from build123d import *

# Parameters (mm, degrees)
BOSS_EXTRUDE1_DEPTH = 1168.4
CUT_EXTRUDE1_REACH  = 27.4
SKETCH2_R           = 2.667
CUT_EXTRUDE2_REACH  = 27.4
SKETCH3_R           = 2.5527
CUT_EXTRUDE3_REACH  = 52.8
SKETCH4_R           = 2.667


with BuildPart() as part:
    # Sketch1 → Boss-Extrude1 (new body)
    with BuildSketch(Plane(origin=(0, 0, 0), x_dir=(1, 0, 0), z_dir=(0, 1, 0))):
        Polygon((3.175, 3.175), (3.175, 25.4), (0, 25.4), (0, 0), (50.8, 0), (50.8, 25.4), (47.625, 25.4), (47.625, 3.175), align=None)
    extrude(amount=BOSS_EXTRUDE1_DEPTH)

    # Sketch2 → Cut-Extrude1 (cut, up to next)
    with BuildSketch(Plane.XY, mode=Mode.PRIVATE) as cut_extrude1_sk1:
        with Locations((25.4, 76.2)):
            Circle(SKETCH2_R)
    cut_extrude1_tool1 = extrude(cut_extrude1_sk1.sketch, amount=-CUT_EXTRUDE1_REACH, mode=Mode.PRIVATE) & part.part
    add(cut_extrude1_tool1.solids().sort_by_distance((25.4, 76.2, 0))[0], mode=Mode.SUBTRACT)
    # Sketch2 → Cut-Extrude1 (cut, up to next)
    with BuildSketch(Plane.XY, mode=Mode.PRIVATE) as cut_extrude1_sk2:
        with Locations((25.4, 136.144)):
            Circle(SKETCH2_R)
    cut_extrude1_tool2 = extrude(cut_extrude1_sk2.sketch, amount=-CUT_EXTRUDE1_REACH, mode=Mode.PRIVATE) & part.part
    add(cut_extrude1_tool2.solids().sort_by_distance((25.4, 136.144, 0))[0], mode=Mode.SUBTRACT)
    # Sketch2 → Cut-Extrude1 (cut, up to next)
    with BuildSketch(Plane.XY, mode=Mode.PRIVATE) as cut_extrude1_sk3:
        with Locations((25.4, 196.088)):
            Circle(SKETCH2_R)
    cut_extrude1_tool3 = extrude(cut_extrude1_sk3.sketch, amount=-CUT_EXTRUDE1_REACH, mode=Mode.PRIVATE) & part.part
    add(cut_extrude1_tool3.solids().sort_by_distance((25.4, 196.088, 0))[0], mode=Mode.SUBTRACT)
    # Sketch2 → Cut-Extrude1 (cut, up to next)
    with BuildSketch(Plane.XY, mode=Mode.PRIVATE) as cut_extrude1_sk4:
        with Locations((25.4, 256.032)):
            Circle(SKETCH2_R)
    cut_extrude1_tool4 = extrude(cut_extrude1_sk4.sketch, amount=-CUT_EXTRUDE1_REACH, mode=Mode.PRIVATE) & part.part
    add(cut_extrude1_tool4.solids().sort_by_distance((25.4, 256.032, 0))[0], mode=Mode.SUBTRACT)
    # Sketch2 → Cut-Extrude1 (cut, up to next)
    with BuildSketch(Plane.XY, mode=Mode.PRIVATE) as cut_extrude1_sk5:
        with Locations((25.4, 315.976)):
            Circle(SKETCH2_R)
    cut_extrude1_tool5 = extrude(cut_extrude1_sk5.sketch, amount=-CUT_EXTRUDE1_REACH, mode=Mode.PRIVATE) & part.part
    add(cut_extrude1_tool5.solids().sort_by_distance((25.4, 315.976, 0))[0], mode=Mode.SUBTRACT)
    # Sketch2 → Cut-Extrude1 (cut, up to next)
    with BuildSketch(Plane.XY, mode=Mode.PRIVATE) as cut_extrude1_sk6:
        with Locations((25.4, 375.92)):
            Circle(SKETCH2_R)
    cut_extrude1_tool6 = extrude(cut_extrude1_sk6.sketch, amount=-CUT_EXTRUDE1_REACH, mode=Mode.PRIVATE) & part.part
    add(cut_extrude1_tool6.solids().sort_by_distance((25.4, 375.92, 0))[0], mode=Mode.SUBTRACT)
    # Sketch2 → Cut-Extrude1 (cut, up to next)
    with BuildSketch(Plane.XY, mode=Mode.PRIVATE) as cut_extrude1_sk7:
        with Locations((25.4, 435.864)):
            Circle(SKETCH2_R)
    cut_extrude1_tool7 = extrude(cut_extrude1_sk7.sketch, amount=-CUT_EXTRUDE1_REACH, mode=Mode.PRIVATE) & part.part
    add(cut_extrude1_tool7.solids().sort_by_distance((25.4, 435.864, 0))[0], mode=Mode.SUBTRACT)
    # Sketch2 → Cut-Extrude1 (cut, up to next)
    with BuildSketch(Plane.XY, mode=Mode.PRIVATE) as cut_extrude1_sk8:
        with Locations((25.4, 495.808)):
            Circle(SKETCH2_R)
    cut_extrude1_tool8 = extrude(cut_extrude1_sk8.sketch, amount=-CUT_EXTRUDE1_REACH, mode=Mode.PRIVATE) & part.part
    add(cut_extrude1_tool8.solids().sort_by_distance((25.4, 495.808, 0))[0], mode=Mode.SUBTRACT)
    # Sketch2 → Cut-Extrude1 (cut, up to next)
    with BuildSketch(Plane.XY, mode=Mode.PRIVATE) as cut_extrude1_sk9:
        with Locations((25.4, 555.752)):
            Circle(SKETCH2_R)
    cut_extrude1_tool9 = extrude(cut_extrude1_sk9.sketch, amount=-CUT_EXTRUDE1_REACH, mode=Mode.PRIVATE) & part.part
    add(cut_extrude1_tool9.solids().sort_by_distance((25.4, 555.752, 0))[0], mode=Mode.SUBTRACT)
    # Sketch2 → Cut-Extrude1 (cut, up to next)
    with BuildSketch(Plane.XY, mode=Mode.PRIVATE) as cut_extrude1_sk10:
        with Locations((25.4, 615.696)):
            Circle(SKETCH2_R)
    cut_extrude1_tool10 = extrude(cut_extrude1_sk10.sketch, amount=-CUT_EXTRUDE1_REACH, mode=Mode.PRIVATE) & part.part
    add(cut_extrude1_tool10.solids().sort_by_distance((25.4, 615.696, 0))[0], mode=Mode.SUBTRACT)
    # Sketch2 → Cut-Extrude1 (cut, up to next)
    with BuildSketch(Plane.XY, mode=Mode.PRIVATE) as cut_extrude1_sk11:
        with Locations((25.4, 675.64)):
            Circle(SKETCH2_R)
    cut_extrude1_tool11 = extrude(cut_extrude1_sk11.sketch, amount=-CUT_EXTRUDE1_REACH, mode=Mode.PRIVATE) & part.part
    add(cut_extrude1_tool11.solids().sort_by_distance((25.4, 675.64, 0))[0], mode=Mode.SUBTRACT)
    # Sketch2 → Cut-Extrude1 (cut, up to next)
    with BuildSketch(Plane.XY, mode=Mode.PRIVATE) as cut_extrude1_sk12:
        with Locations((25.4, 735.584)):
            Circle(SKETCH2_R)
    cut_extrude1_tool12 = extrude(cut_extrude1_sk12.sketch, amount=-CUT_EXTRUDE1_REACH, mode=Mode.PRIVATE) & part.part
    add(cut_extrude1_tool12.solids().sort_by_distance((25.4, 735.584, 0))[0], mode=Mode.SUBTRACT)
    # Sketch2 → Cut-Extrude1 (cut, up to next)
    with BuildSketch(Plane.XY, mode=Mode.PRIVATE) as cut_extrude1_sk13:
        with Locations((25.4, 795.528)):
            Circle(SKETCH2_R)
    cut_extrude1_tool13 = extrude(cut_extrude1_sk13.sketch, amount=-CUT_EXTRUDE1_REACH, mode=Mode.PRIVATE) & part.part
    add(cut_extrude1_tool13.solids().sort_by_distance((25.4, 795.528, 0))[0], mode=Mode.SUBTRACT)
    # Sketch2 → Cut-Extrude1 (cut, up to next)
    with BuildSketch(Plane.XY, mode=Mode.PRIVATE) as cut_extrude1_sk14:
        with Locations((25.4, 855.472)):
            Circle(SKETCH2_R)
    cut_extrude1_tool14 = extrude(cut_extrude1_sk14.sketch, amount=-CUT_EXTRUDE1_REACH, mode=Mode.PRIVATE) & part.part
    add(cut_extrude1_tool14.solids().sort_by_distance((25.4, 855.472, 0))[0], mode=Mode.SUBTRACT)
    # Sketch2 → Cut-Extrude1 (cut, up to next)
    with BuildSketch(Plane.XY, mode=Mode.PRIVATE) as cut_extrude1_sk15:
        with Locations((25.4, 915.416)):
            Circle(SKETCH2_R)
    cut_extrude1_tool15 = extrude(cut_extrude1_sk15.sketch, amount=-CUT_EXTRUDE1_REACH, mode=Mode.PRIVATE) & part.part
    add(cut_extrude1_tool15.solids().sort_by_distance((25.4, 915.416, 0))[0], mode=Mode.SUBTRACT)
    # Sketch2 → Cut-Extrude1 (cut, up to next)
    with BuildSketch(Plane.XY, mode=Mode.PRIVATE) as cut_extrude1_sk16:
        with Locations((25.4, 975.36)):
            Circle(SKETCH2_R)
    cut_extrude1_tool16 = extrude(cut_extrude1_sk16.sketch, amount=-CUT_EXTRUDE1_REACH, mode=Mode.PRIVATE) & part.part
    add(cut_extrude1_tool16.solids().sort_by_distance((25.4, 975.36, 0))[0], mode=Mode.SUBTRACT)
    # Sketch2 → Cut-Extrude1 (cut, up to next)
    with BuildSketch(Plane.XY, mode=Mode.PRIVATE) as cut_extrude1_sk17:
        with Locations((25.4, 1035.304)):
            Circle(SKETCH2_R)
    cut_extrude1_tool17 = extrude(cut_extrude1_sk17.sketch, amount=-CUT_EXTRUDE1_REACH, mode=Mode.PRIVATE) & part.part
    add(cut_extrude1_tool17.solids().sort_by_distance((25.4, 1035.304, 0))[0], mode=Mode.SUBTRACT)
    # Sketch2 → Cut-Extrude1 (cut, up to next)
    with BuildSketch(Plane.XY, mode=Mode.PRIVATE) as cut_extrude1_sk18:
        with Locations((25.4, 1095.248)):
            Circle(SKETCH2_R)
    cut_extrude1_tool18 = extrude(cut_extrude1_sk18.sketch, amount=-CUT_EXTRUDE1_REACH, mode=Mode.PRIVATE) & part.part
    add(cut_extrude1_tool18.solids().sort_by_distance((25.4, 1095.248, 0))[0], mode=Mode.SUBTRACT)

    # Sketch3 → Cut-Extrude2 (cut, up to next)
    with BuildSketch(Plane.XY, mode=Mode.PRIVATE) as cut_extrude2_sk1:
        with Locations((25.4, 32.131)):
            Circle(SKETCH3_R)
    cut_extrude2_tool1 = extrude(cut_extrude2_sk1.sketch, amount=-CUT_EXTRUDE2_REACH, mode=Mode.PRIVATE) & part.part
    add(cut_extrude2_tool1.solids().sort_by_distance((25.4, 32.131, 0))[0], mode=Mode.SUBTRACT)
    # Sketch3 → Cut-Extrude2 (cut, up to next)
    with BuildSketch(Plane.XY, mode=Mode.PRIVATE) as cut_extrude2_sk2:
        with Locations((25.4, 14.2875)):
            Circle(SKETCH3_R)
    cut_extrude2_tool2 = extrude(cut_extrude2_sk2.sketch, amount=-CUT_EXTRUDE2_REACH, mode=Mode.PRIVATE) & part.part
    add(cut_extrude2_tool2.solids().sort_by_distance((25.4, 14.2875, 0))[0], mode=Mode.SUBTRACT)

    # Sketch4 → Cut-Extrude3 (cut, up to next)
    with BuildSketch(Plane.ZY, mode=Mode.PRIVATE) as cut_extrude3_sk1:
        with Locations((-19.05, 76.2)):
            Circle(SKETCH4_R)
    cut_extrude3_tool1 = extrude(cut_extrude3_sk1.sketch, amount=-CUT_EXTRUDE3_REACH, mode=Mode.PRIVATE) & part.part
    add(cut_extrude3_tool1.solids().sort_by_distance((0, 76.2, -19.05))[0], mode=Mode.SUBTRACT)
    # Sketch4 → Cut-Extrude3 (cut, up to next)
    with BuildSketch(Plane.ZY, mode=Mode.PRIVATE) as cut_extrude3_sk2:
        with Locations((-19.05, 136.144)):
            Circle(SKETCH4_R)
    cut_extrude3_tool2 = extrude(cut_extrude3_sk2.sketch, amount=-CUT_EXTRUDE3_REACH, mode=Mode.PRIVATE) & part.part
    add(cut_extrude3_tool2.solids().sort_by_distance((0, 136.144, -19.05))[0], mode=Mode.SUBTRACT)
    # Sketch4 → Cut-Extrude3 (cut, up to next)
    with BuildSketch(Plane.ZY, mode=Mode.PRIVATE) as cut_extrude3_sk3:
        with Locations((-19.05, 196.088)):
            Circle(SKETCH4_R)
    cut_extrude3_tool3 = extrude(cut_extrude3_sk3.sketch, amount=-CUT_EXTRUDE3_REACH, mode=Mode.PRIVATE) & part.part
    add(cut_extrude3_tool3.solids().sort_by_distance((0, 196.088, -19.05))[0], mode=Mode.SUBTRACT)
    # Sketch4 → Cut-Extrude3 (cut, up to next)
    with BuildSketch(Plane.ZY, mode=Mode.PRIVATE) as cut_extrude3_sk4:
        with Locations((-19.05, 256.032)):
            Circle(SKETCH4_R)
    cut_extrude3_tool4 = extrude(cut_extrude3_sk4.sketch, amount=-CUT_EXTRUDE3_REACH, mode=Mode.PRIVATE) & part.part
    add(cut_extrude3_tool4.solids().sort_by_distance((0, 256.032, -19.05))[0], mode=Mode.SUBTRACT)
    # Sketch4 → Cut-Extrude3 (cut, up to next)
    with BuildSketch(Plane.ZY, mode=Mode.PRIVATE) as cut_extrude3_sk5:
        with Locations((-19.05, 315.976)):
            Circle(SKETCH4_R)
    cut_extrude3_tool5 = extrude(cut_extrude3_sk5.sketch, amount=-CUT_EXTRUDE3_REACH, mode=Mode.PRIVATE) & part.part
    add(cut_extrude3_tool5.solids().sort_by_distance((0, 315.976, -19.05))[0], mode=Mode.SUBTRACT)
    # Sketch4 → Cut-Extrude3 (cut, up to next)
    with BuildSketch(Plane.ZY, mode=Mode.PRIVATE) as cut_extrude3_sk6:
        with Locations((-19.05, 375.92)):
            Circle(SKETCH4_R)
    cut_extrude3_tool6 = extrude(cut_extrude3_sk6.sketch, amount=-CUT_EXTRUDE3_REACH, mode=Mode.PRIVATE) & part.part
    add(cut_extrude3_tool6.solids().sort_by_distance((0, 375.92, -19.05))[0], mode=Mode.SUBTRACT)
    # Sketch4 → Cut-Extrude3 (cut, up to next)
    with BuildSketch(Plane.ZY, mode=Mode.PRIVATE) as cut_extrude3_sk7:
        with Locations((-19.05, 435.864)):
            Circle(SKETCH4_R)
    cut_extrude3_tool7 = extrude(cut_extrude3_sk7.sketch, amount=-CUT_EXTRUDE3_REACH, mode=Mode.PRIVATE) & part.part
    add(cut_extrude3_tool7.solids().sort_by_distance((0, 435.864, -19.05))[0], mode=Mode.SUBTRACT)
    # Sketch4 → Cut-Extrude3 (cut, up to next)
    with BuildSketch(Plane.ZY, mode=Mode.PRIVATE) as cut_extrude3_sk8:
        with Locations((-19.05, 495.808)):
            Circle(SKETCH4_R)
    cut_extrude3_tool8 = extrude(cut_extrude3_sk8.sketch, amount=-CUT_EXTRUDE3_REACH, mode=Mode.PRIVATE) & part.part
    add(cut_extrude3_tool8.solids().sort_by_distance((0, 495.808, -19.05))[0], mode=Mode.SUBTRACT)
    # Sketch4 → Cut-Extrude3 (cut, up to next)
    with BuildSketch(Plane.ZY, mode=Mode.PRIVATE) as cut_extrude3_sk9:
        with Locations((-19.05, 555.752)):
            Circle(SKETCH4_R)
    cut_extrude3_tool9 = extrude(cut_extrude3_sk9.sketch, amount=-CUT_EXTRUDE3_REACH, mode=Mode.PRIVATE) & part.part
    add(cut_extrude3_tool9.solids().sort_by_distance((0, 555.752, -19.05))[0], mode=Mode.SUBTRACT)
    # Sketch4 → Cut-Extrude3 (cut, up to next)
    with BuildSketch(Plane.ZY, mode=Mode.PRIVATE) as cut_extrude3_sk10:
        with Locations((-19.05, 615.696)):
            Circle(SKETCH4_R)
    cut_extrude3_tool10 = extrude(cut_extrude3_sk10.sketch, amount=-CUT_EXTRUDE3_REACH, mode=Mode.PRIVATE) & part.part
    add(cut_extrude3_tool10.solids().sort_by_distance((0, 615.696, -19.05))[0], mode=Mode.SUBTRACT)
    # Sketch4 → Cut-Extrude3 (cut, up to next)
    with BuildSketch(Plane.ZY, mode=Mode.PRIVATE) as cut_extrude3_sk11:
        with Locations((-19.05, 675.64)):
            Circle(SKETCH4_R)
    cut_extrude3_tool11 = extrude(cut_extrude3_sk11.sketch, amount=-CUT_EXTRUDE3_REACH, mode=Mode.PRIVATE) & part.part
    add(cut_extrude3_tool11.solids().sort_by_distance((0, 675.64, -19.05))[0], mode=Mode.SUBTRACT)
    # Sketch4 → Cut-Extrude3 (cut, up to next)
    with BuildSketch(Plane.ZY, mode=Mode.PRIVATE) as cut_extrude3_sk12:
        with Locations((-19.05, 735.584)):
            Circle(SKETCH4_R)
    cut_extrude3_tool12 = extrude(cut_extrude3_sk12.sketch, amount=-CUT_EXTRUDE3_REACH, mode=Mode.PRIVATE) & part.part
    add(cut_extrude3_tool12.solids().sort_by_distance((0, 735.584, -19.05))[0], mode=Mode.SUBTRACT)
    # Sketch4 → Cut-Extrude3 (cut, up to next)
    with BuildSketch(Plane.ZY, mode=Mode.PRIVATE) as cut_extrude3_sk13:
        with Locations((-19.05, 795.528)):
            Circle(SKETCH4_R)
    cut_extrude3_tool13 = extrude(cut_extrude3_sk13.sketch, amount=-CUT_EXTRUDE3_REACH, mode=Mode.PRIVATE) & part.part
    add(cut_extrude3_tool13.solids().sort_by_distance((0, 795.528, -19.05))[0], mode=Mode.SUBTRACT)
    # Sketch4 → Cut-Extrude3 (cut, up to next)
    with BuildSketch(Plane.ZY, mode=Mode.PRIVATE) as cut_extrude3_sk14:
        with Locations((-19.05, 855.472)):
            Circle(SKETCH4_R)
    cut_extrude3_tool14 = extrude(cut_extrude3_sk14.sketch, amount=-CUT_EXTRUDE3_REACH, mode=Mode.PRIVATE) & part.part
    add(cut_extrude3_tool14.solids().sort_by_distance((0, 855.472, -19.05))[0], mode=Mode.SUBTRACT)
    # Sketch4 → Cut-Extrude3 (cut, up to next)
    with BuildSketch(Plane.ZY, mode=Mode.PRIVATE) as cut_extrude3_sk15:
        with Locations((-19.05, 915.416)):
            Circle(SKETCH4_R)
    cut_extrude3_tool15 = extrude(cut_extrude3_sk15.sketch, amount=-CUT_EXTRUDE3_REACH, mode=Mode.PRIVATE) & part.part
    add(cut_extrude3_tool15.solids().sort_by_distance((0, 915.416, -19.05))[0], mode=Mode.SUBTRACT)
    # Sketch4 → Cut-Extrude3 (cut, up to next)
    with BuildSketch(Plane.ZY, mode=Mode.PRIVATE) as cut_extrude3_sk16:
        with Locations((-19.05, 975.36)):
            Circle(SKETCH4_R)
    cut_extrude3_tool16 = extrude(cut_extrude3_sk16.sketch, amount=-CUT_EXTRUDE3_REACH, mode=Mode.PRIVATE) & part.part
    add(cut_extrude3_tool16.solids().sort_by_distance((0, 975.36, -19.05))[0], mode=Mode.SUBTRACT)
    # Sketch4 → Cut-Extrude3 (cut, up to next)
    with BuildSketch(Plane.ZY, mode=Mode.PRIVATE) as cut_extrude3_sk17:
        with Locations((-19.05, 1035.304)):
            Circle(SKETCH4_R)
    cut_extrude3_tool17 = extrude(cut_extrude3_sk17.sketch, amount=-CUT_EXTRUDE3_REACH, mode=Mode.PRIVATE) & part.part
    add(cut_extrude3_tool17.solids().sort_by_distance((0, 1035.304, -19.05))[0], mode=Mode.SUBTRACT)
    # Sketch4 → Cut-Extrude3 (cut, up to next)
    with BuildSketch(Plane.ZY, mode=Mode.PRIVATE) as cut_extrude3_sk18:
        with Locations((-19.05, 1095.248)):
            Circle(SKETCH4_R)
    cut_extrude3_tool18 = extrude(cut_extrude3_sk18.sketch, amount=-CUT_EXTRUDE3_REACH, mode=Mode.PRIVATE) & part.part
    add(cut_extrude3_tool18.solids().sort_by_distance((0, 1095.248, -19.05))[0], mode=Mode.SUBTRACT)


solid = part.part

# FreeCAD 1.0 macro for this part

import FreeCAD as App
import Part
import Sketcher

V = App.Vector
Q = App.Units.Quantity


def add_polygon(sketch, points):
    """Adds a closed chain of lines whose ends are joined by coincident constraints."""
    first, n = sketch.GeometryCount, len(points)
    for a, b in zip(points, points[1:] + points[:1]):
        sketch.addGeometry(Part.LineSegment(App.Vector(*a, 0), App.Vector(*b, 0)), False)
    for i in range(n):
        sketch.addConstraint(Sketcher.Constraint("Coincident", first + i, 2, first + (i + 1) % n, 1))

doc = App.newDocument("Part")
body = doc.addObject("PartDesign::Body", "Body")

# Sketch on XZ plane
sketch1 = doc.addObject("Sketcher::SketchObject", "Sketch")
body.addObject(sketch1)
sketch1.AttachmentSupport = (doc.XZ_Plane, [""])
sketch1.MapMode = "FlatFace"
add_polygon(sketch1, [(3.2, -3.2), (3.2, -25.4), (0, -25.4), (0, 0), (50.8, 0), (50.8, -25.4), (47.6, -25.4), (47.6, -3.2)])  # lines 0-7
sketch1.addConstraint([
    Sketcher.Constraint("Vertical", 0),
    Sketcher.Constraint("Horizontal", 1),
    Sketcher.Constraint("Vertical", 2),
    Sketcher.Constraint("Horizontal", 3),
    Sketcher.Constraint("Vertical", 4),
    Sketcher.Constraint("Horizontal", 5),
    Sketcher.Constraint("Vertical", 6),
    Sketcher.Constraint("Horizontal", 7),
    Sketcher.Constraint("Coincident", 2, 2, -1, 1),
    Sketcher.Constraint("Horizontal", 1, 2, 4, 2),
    Sketcher.Constraint("Equal", 1, 5),
    Sketcher.Constraint("DistanceX", 3, 1, 3, 2, Q("2 in")),
    Sketcher.Constraint("DistanceY", 2, 1, 2, 2, Q("1 in")),
    Sketcher.Constraint("DistanceX", 7, 2, 7, 1, Q("1.75 in")),
    Sketcher.Constraint("DistanceY", 0, 2, 0, 1, Q("0.875 in")),
])
pad1 = doc.addObject("PartDesign::Pad", "Pad")
body.addObject(pad1)
pad1.Profile = sketch1
pad1.Length = Q("46 in")
pad1.Reversed = True

# Sketch on XY plane
sketch2 = doc.addObject("Sketcher::SketchObject", "Sketch001")
body.addObject(sketch2)
sketch2.AttachmentSupport = (doc.XY_Plane, [""])
sketch2.MapMode = "FlatFace"
sketch2.addGeometry(Part.Circle(V(25.4, 76.2, 0), V(0, 0, 1), 2.7), False)
sketch2.addConstraint([
    Sketcher.Constraint("Diameter", 0, Q("0.21 in")),
    Sketcher.Constraint("DistanceX", -1, 1, 0, 3, Q("1 in")),
    Sketcher.Constraint("DistanceY", -1, 1, 0, 3, Q("3 in")),
])
pocket1 = doc.addObject("PartDesign::Pocket", "Pocket")
body.addObject(pocket1)
pocket1.Profile = sketch2
pocket1.Type = "UpToFirst"

# Sketch on XY plane
sketch3 = doc.addObject("Sketcher::SketchObject", "Sketch002")
body.addObject(sketch3)
sketch3.AttachmentSupport = (doc.XY_Plane, [""])
sketch3.MapMode = "FlatFace"
sketch3.addGeometry(Part.Circle(V(25.4, 136.1, 0), V(0, 0, 1), 2.7), False)
sketch3.addConstraint([
    Sketcher.Constraint("Diameter", 0, Q("0.21 in")),
    Sketcher.Constraint("DistanceX", -1, 1, 0, 3, Q("1 in")),
    Sketcher.Constraint("DistanceY", -1, 1, 0, 3, Q("5.36 in")),
])
pocket2 = doc.addObject("PartDesign::Pocket", "Pocket001")
body.addObject(pocket2)
pocket2.Profile = sketch3
pocket2.Type = "UpToFirst"

# Sketch on XY plane
sketch4 = doc.addObject("Sketcher::SketchObject", "Sketch003")
body.addObject(sketch4)
sketch4.AttachmentSupport = (doc.XY_Plane, [""])
sketch4.MapMode = "FlatFace"
sketch4.addGeometry(Part.Circle(V(25.4, 196.1, 0), V(0, 0, 1), 2.7), False)
sketch4.addConstraint([
    Sketcher.Constraint("Diameter", 0, Q("0.21 in")),
    Sketcher.Constraint("DistanceX", -1, 1, 0, 3, Q("1 in")),
    Sketcher.Constraint("DistanceY", -1, 1, 0, 3, Q("7.72 in")),
])
pocket3 = doc.addObject("PartDesign::Pocket", "Pocket002")
body.addObject(pocket3)
pocket3.Profile = sketch4
pocket3.Type = "UpToFirst"

# Sketch on XY plane
sketch5 = doc.addObject("Sketcher::SketchObject", "Sketch004")
body.addObject(sketch5)
sketch5.AttachmentSupport = (doc.XY_Plane, [""])
sketch5.MapMode = "FlatFace"
sketch5.addGeometry(Part.Circle(V(25.4, 256, 0), V(0, 0, 1), 2.7), False)
sketch5.addConstraint([
    Sketcher.Constraint("Diameter", 0, Q("0.21 in")),
    Sketcher.Constraint("DistanceX", -1, 1, 0, 3, Q("1 in")),
    Sketcher.Constraint("DistanceY", -1, 1, 0, 3, Q("10.08 in")),
])
pocket4 = doc.addObject("PartDesign::Pocket", "Pocket003")
body.addObject(pocket4)
pocket4.Profile = sketch5
pocket4.Type = "UpToFirst"

# Sketch on XY plane
sketch6 = doc.addObject("Sketcher::SketchObject", "Sketch005")
body.addObject(sketch6)
sketch6.AttachmentSupport = (doc.XY_Plane, [""])
sketch6.MapMode = "FlatFace"
sketch6.addGeometry(Part.Circle(V(25.4, 316, 0), V(0, 0, 1), 2.7), False)
sketch6.addConstraint([
    Sketcher.Constraint("Diameter", 0, Q("0.21 in")),
    Sketcher.Constraint("DistanceX", -1, 1, 0, 3, Q("1 in")),
    Sketcher.Constraint("DistanceY", -1, 1, 0, 3, Q("12.44 in")),
])
pocket5 = doc.addObject("PartDesign::Pocket", "Pocket004")
body.addObject(pocket5)
pocket5.Profile = sketch6
pocket5.Type = "UpToFirst"

# Sketch on XY plane
sketch7 = doc.addObject("Sketcher::SketchObject", "Sketch006")
body.addObject(sketch7)
sketch7.AttachmentSupport = (doc.XY_Plane, [""])
sketch7.MapMode = "FlatFace"
sketch7.addGeometry(Part.Circle(V(25.4, 375.9, 0), V(0, 0, 1), 2.7), False)
sketch7.addConstraint([
    Sketcher.Constraint("Diameter", 0, Q("0.21 in")),
    Sketcher.Constraint("DistanceX", -1, 1, 0, 3, Q("1 in")),
    Sketcher.Constraint("DistanceY", -1, 1, 0, 3, Q("14.8 in")),
])
pocket6 = doc.addObject("PartDesign::Pocket", "Pocket005")
body.addObject(pocket6)
pocket6.Profile = sketch7
pocket6.Type = "UpToFirst"

# Sketch on XY plane
sketch8 = doc.addObject("Sketcher::SketchObject", "Sketch007")
body.addObject(sketch8)
sketch8.AttachmentSupport = (doc.XY_Plane, [""])
sketch8.MapMode = "FlatFace"
sketch8.addGeometry(Part.Circle(V(25.4, 435.9, 0), V(0, 0, 1), 2.7), False)
sketch8.addConstraint([
    Sketcher.Constraint("Diameter", 0, Q("0.21 in")),
    Sketcher.Constraint("DistanceX", -1, 1, 0, 3, Q("1 in")),
    Sketcher.Constraint("DistanceY", -1, 1, 0, 3, Q("17.16 in")),
])
pocket7 = doc.addObject("PartDesign::Pocket", "Pocket006")
body.addObject(pocket7)
pocket7.Profile = sketch8
pocket7.Type = "UpToFirst"

# Sketch on XY plane
sketch9 = doc.addObject("Sketcher::SketchObject", "Sketch008")
body.addObject(sketch9)
sketch9.AttachmentSupport = (doc.XY_Plane, [""])
sketch9.MapMode = "FlatFace"
sketch9.addGeometry(Part.Circle(V(25.4, 495.8, 0), V(0, 0, 1), 2.7), False)
sketch9.addConstraint([
    Sketcher.Constraint("Diameter", 0, Q("0.21 in")),
    Sketcher.Constraint("DistanceX", -1, 1, 0, 3, Q("1 in")),
    Sketcher.Constraint("DistanceY", -1, 1, 0, 3, Q("19.52 in")),
])
pocket8 = doc.addObject("PartDesign::Pocket", "Pocket007")
body.addObject(pocket8)
pocket8.Profile = sketch9
pocket8.Type = "UpToFirst"

# Sketch on XY plane
sketch10 = doc.addObject("Sketcher::SketchObject", "Sketch009")
body.addObject(sketch10)
sketch10.AttachmentSupport = (doc.XY_Plane, [""])
sketch10.MapMode = "FlatFace"
sketch10.addGeometry(Part.Circle(V(25.4, 555.8, 0), V(0, 0, 1), 2.7), False)
sketch10.addConstraint([
    Sketcher.Constraint("Diameter", 0, Q("0.21 in")),
    Sketcher.Constraint("DistanceX", -1, 1, 0, 3, Q("1 in")),
    Sketcher.Constraint("DistanceY", -1, 1, 0, 3, Q("21.88 in")),
])
pocket9 = doc.addObject("PartDesign::Pocket", "Pocket008")
body.addObject(pocket9)
pocket9.Profile = sketch10
pocket9.Type = "UpToFirst"

# Sketch on XY plane
sketch11 = doc.addObject("Sketcher::SketchObject", "Sketch010")
body.addObject(sketch11)
sketch11.AttachmentSupport = (doc.XY_Plane, [""])
sketch11.MapMode = "FlatFace"
sketch11.addGeometry(Part.Circle(V(25.4, 615.7, 0), V(0, 0, 1), 2.7), False)
sketch11.addConstraint([
    Sketcher.Constraint("Diameter", 0, Q("0.21 in")),
    Sketcher.Constraint("DistanceX", -1, 1, 0, 3, Q("1 in")),
    Sketcher.Constraint("DistanceY", -1, 1, 0, 3, Q("24.24 in")),
])
pocket10 = doc.addObject("PartDesign::Pocket", "Pocket009")
body.addObject(pocket10)
pocket10.Profile = sketch11
pocket10.Type = "UpToFirst"

# Sketch on XY plane
sketch12 = doc.addObject("Sketcher::SketchObject", "Sketch011")
body.addObject(sketch12)
sketch12.AttachmentSupport = (doc.XY_Plane, [""])
sketch12.MapMode = "FlatFace"
sketch12.addGeometry(Part.Circle(V(25.4, 675.6, 0), V(0, 0, 1), 2.7), False)
sketch12.addConstraint([
    Sketcher.Constraint("Diameter", 0, Q("0.21 in")),
    Sketcher.Constraint("DistanceX", -1, 1, 0, 3, Q("1 in")),
    Sketcher.Constraint("DistanceY", -1, 1, 0, 3, Q("26.6 in")),
])
pocket11 = doc.addObject("PartDesign::Pocket", "Pocket010")
body.addObject(pocket11)
pocket11.Profile = sketch12
pocket11.Type = "UpToFirst"

# Sketch on XY plane
sketch13 = doc.addObject("Sketcher::SketchObject", "Sketch012")
body.addObject(sketch13)
sketch13.AttachmentSupport = (doc.XY_Plane, [""])
sketch13.MapMode = "FlatFace"
sketch13.addGeometry(Part.Circle(V(25.4, 735.6, 0), V(0, 0, 1), 2.7), False)
sketch13.addConstraint([
    Sketcher.Constraint("Diameter", 0, Q("0.21 in")),
    Sketcher.Constraint("DistanceX", -1, 1, 0, 3, Q("1 in")),
    Sketcher.Constraint("DistanceY", -1, 1, 0, 3, Q("28.96 in")),
])
pocket12 = doc.addObject("PartDesign::Pocket", "Pocket011")
body.addObject(pocket12)
pocket12.Profile = sketch13
pocket12.Type = "UpToFirst"

# Sketch on XY plane
sketch14 = doc.addObject("Sketcher::SketchObject", "Sketch013")
body.addObject(sketch14)
sketch14.AttachmentSupport = (doc.XY_Plane, [""])
sketch14.MapMode = "FlatFace"
sketch14.addGeometry(Part.Circle(V(25.4, 795.5, 0), V(0, 0, 1), 2.7), False)
sketch14.addConstraint([
    Sketcher.Constraint("Diameter", 0, Q("0.21 in")),
    Sketcher.Constraint("DistanceX", -1, 1, 0, 3, Q("1 in")),
    Sketcher.Constraint("DistanceY", -1, 1, 0, 3, Q("31.32 in")),
])
pocket13 = doc.addObject("PartDesign::Pocket", "Pocket012")
body.addObject(pocket13)
pocket13.Profile = sketch14
pocket13.Type = "UpToFirst"

# Sketch on XY plane
sketch15 = doc.addObject("Sketcher::SketchObject", "Sketch014")
body.addObject(sketch15)
sketch15.AttachmentSupport = (doc.XY_Plane, [""])
sketch15.MapMode = "FlatFace"
sketch15.addGeometry(Part.Circle(V(25.4, 855.5, 0), V(0, 0, 1), 2.7), False)
sketch15.addConstraint([
    Sketcher.Constraint("Diameter", 0, Q("0.21 in")),
    Sketcher.Constraint("DistanceX", -1, 1, 0, 3, Q("1 in")),
    Sketcher.Constraint("DistanceY", -1, 1, 0, 3, Q("33.68 in")),
])
pocket14 = doc.addObject("PartDesign::Pocket", "Pocket013")
body.addObject(pocket14)
pocket14.Profile = sketch15
pocket14.Type = "UpToFirst"

# Sketch on XY plane
sketch16 = doc.addObject("Sketcher::SketchObject", "Sketch015")
body.addObject(sketch16)
sketch16.AttachmentSupport = (doc.XY_Plane, [""])
sketch16.MapMode = "FlatFace"
sketch16.addGeometry(Part.Circle(V(25.4, 915.4, 0), V(0, 0, 1), 2.7), False)
sketch16.addConstraint([
    Sketcher.Constraint("Diameter", 0, Q("0.21 in")),
    Sketcher.Constraint("DistanceX", -1, 1, 0, 3, Q("1 in")),
    Sketcher.Constraint("DistanceY", -1, 1, 0, 3, Q("36.04 in")),
])
pocket15 = doc.addObject("PartDesign::Pocket", "Pocket014")
body.addObject(pocket15)
pocket15.Profile = sketch16
pocket15.Type = "UpToFirst"

# Sketch on XY plane
sketch17 = doc.addObject("Sketcher::SketchObject", "Sketch016")
body.addObject(sketch17)
sketch17.AttachmentSupport = (doc.XY_Plane, [""])
sketch17.MapMode = "FlatFace"
sketch17.addGeometry(Part.Circle(V(25.4, 975.4, 0), V(0, 0, 1), 2.7), False)
sketch17.addConstraint([
    Sketcher.Constraint("Diameter", 0, Q("0.21 in")),
    Sketcher.Constraint("DistanceX", -1, 1, 0, 3, Q("1 in")),
    Sketcher.Constraint("DistanceY", -1, 1, 0, 3, Q("38.4 in")),
])
pocket16 = doc.addObject("PartDesign::Pocket", "Pocket015")
body.addObject(pocket16)
pocket16.Profile = sketch17
pocket16.Type = "UpToFirst"

# Sketch on XY plane
sketch18 = doc.addObject("Sketcher::SketchObject", "Sketch017")
body.addObject(sketch18)
sketch18.AttachmentSupport = (doc.XY_Plane, [""])
sketch18.MapMode = "FlatFace"
sketch18.addGeometry(Part.Circle(V(25.4, 1035.3, 0), V(0, 0, 1), 2.7), False)
sketch18.addConstraint([
    Sketcher.Constraint("Diameter", 0, Q("0.21 in")),
    Sketcher.Constraint("DistanceX", -1, 1, 0, 3, Q("1 in")),
    Sketcher.Constraint("DistanceY", -1, 1, 0, 3, Q("40.76 in")),
])
pocket17 = doc.addObject("PartDesign::Pocket", "Pocket016")
body.addObject(pocket17)
pocket17.Profile = sketch18
pocket17.Type = "UpToFirst"

# Sketch on XY plane
sketch19 = doc.addObject("Sketcher::SketchObject", "Sketch018")
body.addObject(sketch19)
sketch19.AttachmentSupport = (doc.XY_Plane, [""])
sketch19.MapMode = "FlatFace"
sketch19.addGeometry(Part.Circle(V(25.4, 1095.2, 0), V(0, 0, 1), 2.7), False)
sketch19.addConstraint([
    Sketcher.Constraint("Diameter", 0, Q("0.21 in")),
    Sketcher.Constraint("DistanceX", -1, 1, 0, 3, Q("1 in")),
    Sketcher.Constraint("DistanceY", -1, 1, 0, 3, Q("43.12 in")),
])
pocket18 = doc.addObject("PartDesign::Pocket", "Pocket017")
body.addObject(pocket18)
pocket18.Profile = sketch19
pocket18.Type = "UpToFirst"

# Sketch on XY plane
sketch20 = doc.addObject("Sketcher::SketchObject", "Sketch019")
body.addObject(sketch20)
sketch20.AttachmentSupport = (doc.XY_Plane, [""])
sketch20.MapMode = "FlatFace"
sketch20.addGeometry(Part.Circle(V(25.4, 32.1, 0), V(0, 0, 1), 2.6), False)
sketch20.addConstraint([
    Sketcher.Constraint("Diameter", 0, Q("0.201 in")),
    Sketcher.Constraint("DistanceX", -1, 1, 0, 3, Q("1 in")),
    Sketcher.Constraint("DistanceY", -1, 1, 0, 3, Q("1.265 in")),
])
pocket19 = doc.addObject("PartDesign::Pocket", "Pocket018")
body.addObject(pocket19)
pocket19.Profile = sketch20
pocket19.Type = "UpToFirst"

# Sketch on XY plane
sketch21 = doc.addObject("Sketcher::SketchObject", "Sketch020")
body.addObject(sketch21)
sketch21.AttachmentSupport = (doc.XY_Plane, [""])
sketch21.MapMode = "FlatFace"
sketch21.addGeometry(Part.Circle(V(25.4, 14.3, 0), V(0, 0, 1), 2.6), False)
sketch21.addConstraint([
    Sketcher.Constraint("Diameter", 0, Q("0.201 in")),
    Sketcher.Constraint("DistanceX", -1, 1, 0, 3, Q("1 in")),
    Sketcher.Constraint("DistanceY", -1, 1, 0, 3, Q("0.5625 in")),
])
pocket20 = doc.addObject("PartDesign::Pocket", "Pocket019")
body.addObject(pocket20)
pocket20.Profile = sketch21
pocket20.Type = "UpToFirst"

# Sketch on YZ plane
sketch22 = doc.addObject("Sketcher::SketchObject", "Sketch021")
body.addObject(sketch22)
sketch22.AttachmentSupport = (doc.YZ_Plane, [""])
sketch22.MapMode = "FlatFace"
sketch22.addGeometry(Part.Circle(V(76.2, -19.1, 0), V(0, 0, 1), 2.7), False)
sketch22.addConstraint([
    Sketcher.Constraint("Diameter", 0, Q("0.21 in")),
    Sketcher.Constraint("DistanceX", -1, 1, 0, 3, Q("3 in")),
    Sketcher.Constraint("DistanceY", 0, 3, -1, 1, Q("0.75 in")),
])
pocket21 = doc.addObject("PartDesign::Pocket", "Pocket020")
body.addObject(pocket21)
pocket21.Profile = sketch22
pocket21.Type = "UpToFirst"
pocket21.Reversed = True

# Sketch on YZ plane
sketch23 = doc.addObject("Sketcher::SketchObject", "Sketch022")
body.addObject(sketch23)
sketch23.AttachmentSupport = (doc.YZ_Plane, [""])
sketch23.MapMode = "FlatFace"
sketch23.addGeometry(Part.Circle(V(136.1, -19.1, 0), V(0, 0, 1), 2.7), False)
sketch23.addConstraint([
    Sketcher.Constraint("Diameter", 0, Q("0.21 in")),
    Sketcher.Constraint("DistanceX", -1, 1, 0, 3, Q("5.36 in")),
    Sketcher.Constraint("DistanceY", 0, 3, -1, 1, Q("0.75 in")),
])
pocket22 = doc.addObject("PartDesign::Pocket", "Pocket021")
body.addObject(pocket22)
pocket22.Profile = sketch23
pocket22.Type = "UpToFirst"
pocket22.Reversed = True

# Sketch on YZ plane
sketch24 = doc.addObject("Sketcher::SketchObject", "Sketch023")
body.addObject(sketch24)
sketch24.AttachmentSupport = (doc.YZ_Plane, [""])
sketch24.MapMode = "FlatFace"
sketch24.addGeometry(Part.Circle(V(196.1, -19.1, 0), V(0, 0, 1), 2.7), False)
sketch24.addConstraint([
    Sketcher.Constraint("Diameter", 0, Q("0.21 in")),
    Sketcher.Constraint("DistanceX", -1, 1, 0, 3, Q("7.72 in")),
    Sketcher.Constraint("DistanceY", 0, 3, -1, 1, Q("0.75 in")),
])
pocket23 = doc.addObject("PartDesign::Pocket", "Pocket022")
body.addObject(pocket23)
pocket23.Profile = sketch24
pocket23.Type = "UpToFirst"
pocket23.Reversed = True

# Sketch on YZ plane
sketch25 = doc.addObject("Sketcher::SketchObject", "Sketch024")
body.addObject(sketch25)
sketch25.AttachmentSupport = (doc.YZ_Plane, [""])
sketch25.MapMode = "FlatFace"
sketch25.addGeometry(Part.Circle(V(256, -19.1, 0), V(0, 0, 1), 2.7), False)
sketch25.addConstraint([
    Sketcher.Constraint("Diameter", 0, Q("0.21 in")),
    Sketcher.Constraint("DistanceX", -1, 1, 0, 3, Q("10.08 in")),
    Sketcher.Constraint("DistanceY", 0, 3, -1, 1, Q("0.75 in")),
])
pocket24 = doc.addObject("PartDesign::Pocket", "Pocket023")
body.addObject(pocket24)
pocket24.Profile = sketch25
pocket24.Type = "UpToFirst"
pocket24.Reversed = True

# Sketch on YZ plane
sketch26 = doc.addObject("Sketcher::SketchObject", "Sketch025")
body.addObject(sketch26)
sketch26.AttachmentSupport = (doc.YZ_Plane, [""])
sketch26.MapMode = "FlatFace"
sketch26.addGeometry(Part.Circle(V(316, -19.1, 0), V(0, 0, 1), 2.7), False)
sketch26.addConstraint([
    Sketcher.Constraint("Diameter", 0, Q("0.21 in")),
    Sketcher.Constraint("DistanceX", -1, 1, 0, 3, Q("12.44 in")),
    Sketcher.Constraint("DistanceY", 0, 3, -1, 1, Q("0.75 in")),
])
pocket25 = doc.addObject("PartDesign::Pocket", "Pocket024")
body.addObject(pocket25)
pocket25.Profile = sketch26
pocket25.Type = "UpToFirst"
pocket25.Reversed = True

# Sketch on YZ plane
sketch27 = doc.addObject("Sketcher::SketchObject", "Sketch026")
body.addObject(sketch27)
sketch27.AttachmentSupport = (doc.YZ_Plane, [""])
sketch27.MapMode = "FlatFace"
sketch27.addGeometry(Part.Circle(V(375.9, -19.1, 0), V(0, 0, 1), 2.7), False)
sketch27.addConstraint([
    Sketcher.Constraint("Diameter", 0, Q("0.21 in")),
    Sketcher.Constraint("DistanceX", -1, 1, 0, 3, Q("14.8 in")),
    Sketcher.Constraint("DistanceY", 0, 3, -1, 1, Q("0.75 in")),
])
pocket26 = doc.addObject("PartDesign::Pocket", "Pocket025")
body.addObject(pocket26)
pocket26.Profile = sketch27
pocket26.Type = "UpToFirst"
pocket26.Reversed = True

# Sketch on YZ plane
sketch28 = doc.addObject("Sketcher::SketchObject", "Sketch027")
body.addObject(sketch28)
sketch28.AttachmentSupport = (doc.YZ_Plane, [""])
sketch28.MapMode = "FlatFace"
sketch28.addGeometry(Part.Circle(V(435.9, -19.1, 0), V(0, 0, 1), 2.7), False)
sketch28.addConstraint([
    Sketcher.Constraint("Diameter", 0, Q("0.21 in")),
    Sketcher.Constraint("DistanceX", -1, 1, 0, 3, Q("17.16 in")),
    Sketcher.Constraint("DistanceY", 0, 3, -1, 1, Q("0.75 in")),
])
pocket27 = doc.addObject("PartDesign::Pocket", "Pocket026")
body.addObject(pocket27)
pocket27.Profile = sketch28
pocket27.Type = "UpToFirst"
pocket27.Reversed = True

# Sketch on YZ plane
sketch29 = doc.addObject("Sketcher::SketchObject", "Sketch028")
body.addObject(sketch29)
sketch29.AttachmentSupport = (doc.YZ_Plane, [""])
sketch29.MapMode = "FlatFace"
sketch29.addGeometry(Part.Circle(V(495.8, -19.1, 0), V(0, 0, 1), 2.7), False)
sketch29.addConstraint([
    Sketcher.Constraint("Diameter", 0, Q("0.21 in")),
    Sketcher.Constraint("DistanceX", -1, 1, 0, 3, Q("19.52 in")),
    Sketcher.Constraint("DistanceY", 0, 3, -1, 1, Q("0.75 in")),
])
pocket28 = doc.addObject("PartDesign::Pocket", "Pocket027")
body.addObject(pocket28)
pocket28.Profile = sketch29
pocket28.Type = "UpToFirst"
pocket28.Reversed = True

# Sketch on YZ plane
sketch30 = doc.addObject("Sketcher::SketchObject", "Sketch029")
body.addObject(sketch30)
sketch30.AttachmentSupport = (doc.YZ_Plane, [""])
sketch30.MapMode = "FlatFace"
sketch30.addGeometry(Part.Circle(V(555.8, -19.1, 0), V(0, 0, 1), 2.7), False)
sketch30.addConstraint([
    Sketcher.Constraint("Diameter", 0, Q("0.21 in")),
    Sketcher.Constraint("DistanceX", -1, 1, 0, 3, Q("21.88 in")),
    Sketcher.Constraint("DistanceY", 0, 3, -1, 1, Q("0.75 in")),
])
pocket29 = doc.addObject("PartDesign::Pocket", "Pocket028")
body.addObject(pocket29)
pocket29.Profile = sketch30
pocket29.Type = "UpToFirst"
pocket29.Reversed = True

# Sketch on YZ plane
sketch31 = doc.addObject("Sketcher::SketchObject", "Sketch030")
body.addObject(sketch31)
sketch31.AttachmentSupport = (doc.YZ_Plane, [""])
sketch31.MapMode = "FlatFace"
sketch31.addGeometry(Part.Circle(V(615.7, -19.1, 0), V(0, 0, 1), 2.7), False)
sketch31.addConstraint([
    Sketcher.Constraint("Diameter", 0, Q("0.21 in")),
    Sketcher.Constraint("DistanceX", -1, 1, 0, 3, Q("24.24 in")),
    Sketcher.Constraint("DistanceY", 0, 3, -1, 1, Q("0.75 in")),
])
pocket30 = doc.addObject("PartDesign::Pocket", "Pocket029")
body.addObject(pocket30)
pocket30.Profile = sketch31
pocket30.Type = "UpToFirst"
pocket30.Reversed = True

# Sketch on YZ plane
sketch32 = doc.addObject("Sketcher::SketchObject", "Sketch031")
body.addObject(sketch32)
sketch32.AttachmentSupport = (doc.YZ_Plane, [""])
sketch32.MapMode = "FlatFace"
sketch32.addGeometry(Part.Circle(V(675.6, -19.1, 0), V(0, 0, 1), 2.7), False)
sketch32.addConstraint([
    Sketcher.Constraint("Diameter", 0, Q("0.21 in")),
    Sketcher.Constraint("DistanceX", -1, 1, 0, 3, Q("26.6 in")),
    Sketcher.Constraint("DistanceY", 0, 3, -1, 1, Q("0.75 in")),
])
pocket31 = doc.addObject("PartDesign::Pocket", "Pocket030")
body.addObject(pocket31)
pocket31.Profile = sketch32
pocket31.Type = "UpToFirst"
pocket31.Reversed = True

# Sketch on YZ plane
sketch33 = doc.addObject("Sketcher::SketchObject", "Sketch032")
body.addObject(sketch33)
sketch33.AttachmentSupport = (doc.YZ_Plane, [""])
sketch33.MapMode = "FlatFace"
sketch33.addGeometry(Part.Circle(V(735.6, -19.1, 0), V(0, 0, 1), 2.7), False)
sketch33.addConstraint([
    Sketcher.Constraint("Diameter", 0, Q("0.21 in")),
    Sketcher.Constraint("DistanceX", -1, 1, 0, 3, Q("28.96 in")),
    Sketcher.Constraint("DistanceY", 0, 3, -1, 1, Q("0.75 in")),
])
pocket32 = doc.addObject("PartDesign::Pocket", "Pocket031")
body.addObject(pocket32)
pocket32.Profile = sketch33
pocket32.Type = "UpToFirst"
pocket32.Reversed = True

# Sketch on YZ plane
sketch34 = doc.addObject("Sketcher::SketchObject", "Sketch033")
body.addObject(sketch34)
sketch34.AttachmentSupport = (doc.YZ_Plane, [""])
sketch34.MapMode = "FlatFace"
sketch34.addGeometry(Part.Circle(V(795.5, -19.1, 0), V(0, 0, 1), 2.7), False)
sketch34.addConstraint([
    Sketcher.Constraint("Diameter", 0, Q("0.21 in")),
    Sketcher.Constraint("DistanceX", -1, 1, 0, 3, Q("31.32 in")),
    Sketcher.Constraint("DistanceY", 0, 3, -1, 1, Q("0.75 in")),
])
pocket33 = doc.addObject("PartDesign::Pocket", "Pocket032")
body.addObject(pocket33)
pocket33.Profile = sketch34
pocket33.Type = "UpToFirst"
pocket33.Reversed = True

# Sketch on YZ plane
sketch35 = doc.addObject("Sketcher::SketchObject", "Sketch034")
body.addObject(sketch35)
sketch35.AttachmentSupport = (doc.YZ_Plane, [""])
sketch35.MapMode = "FlatFace"
sketch35.addGeometry(Part.Circle(V(855.5, -19.1, 0), V(0, 0, 1), 2.7), False)
sketch35.addConstraint([
    Sketcher.Constraint("Diameter", 0, Q("0.21 in")),
    Sketcher.Constraint("DistanceX", -1, 1, 0, 3, Q("33.68 in")),
    Sketcher.Constraint("DistanceY", 0, 3, -1, 1, Q("0.75 in")),
])
pocket34 = doc.addObject("PartDesign::Pocket", "Pocket033")
body.addObject(pocket34)
pocket34.Profile = sketch35
pocket34.Type = "UpToFirst"
pocket34.Reversed = True

# Sketch on YZ plane
sketch36 = doc.addObject("Sketcher::SketchObject", "Sketch035")
body.addObject(sketch36)
sketch36.AttachmentSupport = (doc.YZ_Plane, [""])
sketch36.MapMode = "FlatFace"
sketch36.addGeometry(Part.Circle(V(915.4, -19.1, 0), V(0, 0, 1), 2.7), False)
sketch36.addConstraint([
    Sketcher.Constraint("Diameter", 0, Q("0.21 in")),
    Sketcher.Constraint("DistanceX", -1, 1, 0, 3, Q("36.04 in")),
    Sketcher.Constraint("DistanceY", 0, 3, -1, 1, Q("0.75 in")),
])
pocket35 = doc.addObject("PartDesign::Pocket", "Pocket034")
body.addObject(pocket35)
pocket35.Profile = sketch36
pocket35.Type = "UpToFirst"
pocket35.Reversed = True

# Sketch on YZ plane
sketch37 = doc.addObject("Sketcher::SketchObject", "Sketch036")
body.addObject(sketch37)
sketch37.AttachmentSupport = (doc.YZ_Plane, [""])
sketch37.MapMode = "FlatFace"
sketch37.addGeometry(Part.Circle(V(975.4, -19.1, 0), V(0, 0, 1), 2.7), False)
sketch37.addConstraint([
    Sketcher.Constraint("Diameter", 0, Q("0.21 in")),
    Sketcher.Constraint("DistanceX", -1, 1, 0, 3, Q("38.4 in")),
    Sketcher.Constraint("DistanceY", 0, 3, -1, 1, Q("0.75 in")),
])
pocket36 = doc.addObject("PartDesign::Pocket", "Pocket035")
body.addObject(pocket36)
pocket36.Profile = sketch37
pocket36.Type = "UpToFirst"
pocket36.Reversed = True

# Sketch on YZ plane
sketch38 = doc.addObject("Sketcher::SketchObject", "Sketch037")
body.addObject(sketch38)
sketch38.AttachmentSupport = (doc.YZ_Plane, [""])
sketch38.MapMode = "FlatFace"
sketch38.addGeometry(Part.Circle(V(1035.3, -19.1, 0), V(0, 0, 1), 2.7), False)
sketch38.addConstraint([
    Sketcher.Constraint("Diameter", 0, Q("0.21 in")),
    Sketcher.Constraint("DistanceX", -1, 1, 0, 3, Q("40.76 in")),
    Sketcher.Constraint("DistanceY", 0, 3, -1, 1, Q("0.75 in")),
])
pocket37 = doc.addObject("PartDesign::Pocket", "Pocket036")
body.addObject(pocket37)
pocket37.Profile = sketch38
pocket37.Type = "UpToFirst"
pocket37.Reversed = True

# Sketch on YZ plane
sketch39 = doc.addObject("Sketcher::SketchObject", "Sketch038")
body.addObject(sketch39)
sketch39.AttachmentSupport = (doc.YZ_Plane, [""])
sketch39.MapMode = "FlatFace"
sketch39.addGeometry(Part.Circle(V(1095.2, -19.1, 0), V(0, 0, 1), 2.7), False)
sketch39.addConstraint([
    Sketcher.Constraint("Diameter", 0, Q("0.21 in")),
    Sketcher.Constraint("DistanceX", -1, 1, 0, 3, Q("43.12 in")),
    Sketcher.Constraint("DistanceY", 0, 3, -1, 1, Q("0.75 in")),
])
pocket38 = doc.addObject("PartDesign::Pocket", "Pocket037")
body.addObject(pocket38)
pocket38.Profile = sketch39
pocket38.Type = "UpToFirst"
pocket38.Reversed = True

doc.recompute()
